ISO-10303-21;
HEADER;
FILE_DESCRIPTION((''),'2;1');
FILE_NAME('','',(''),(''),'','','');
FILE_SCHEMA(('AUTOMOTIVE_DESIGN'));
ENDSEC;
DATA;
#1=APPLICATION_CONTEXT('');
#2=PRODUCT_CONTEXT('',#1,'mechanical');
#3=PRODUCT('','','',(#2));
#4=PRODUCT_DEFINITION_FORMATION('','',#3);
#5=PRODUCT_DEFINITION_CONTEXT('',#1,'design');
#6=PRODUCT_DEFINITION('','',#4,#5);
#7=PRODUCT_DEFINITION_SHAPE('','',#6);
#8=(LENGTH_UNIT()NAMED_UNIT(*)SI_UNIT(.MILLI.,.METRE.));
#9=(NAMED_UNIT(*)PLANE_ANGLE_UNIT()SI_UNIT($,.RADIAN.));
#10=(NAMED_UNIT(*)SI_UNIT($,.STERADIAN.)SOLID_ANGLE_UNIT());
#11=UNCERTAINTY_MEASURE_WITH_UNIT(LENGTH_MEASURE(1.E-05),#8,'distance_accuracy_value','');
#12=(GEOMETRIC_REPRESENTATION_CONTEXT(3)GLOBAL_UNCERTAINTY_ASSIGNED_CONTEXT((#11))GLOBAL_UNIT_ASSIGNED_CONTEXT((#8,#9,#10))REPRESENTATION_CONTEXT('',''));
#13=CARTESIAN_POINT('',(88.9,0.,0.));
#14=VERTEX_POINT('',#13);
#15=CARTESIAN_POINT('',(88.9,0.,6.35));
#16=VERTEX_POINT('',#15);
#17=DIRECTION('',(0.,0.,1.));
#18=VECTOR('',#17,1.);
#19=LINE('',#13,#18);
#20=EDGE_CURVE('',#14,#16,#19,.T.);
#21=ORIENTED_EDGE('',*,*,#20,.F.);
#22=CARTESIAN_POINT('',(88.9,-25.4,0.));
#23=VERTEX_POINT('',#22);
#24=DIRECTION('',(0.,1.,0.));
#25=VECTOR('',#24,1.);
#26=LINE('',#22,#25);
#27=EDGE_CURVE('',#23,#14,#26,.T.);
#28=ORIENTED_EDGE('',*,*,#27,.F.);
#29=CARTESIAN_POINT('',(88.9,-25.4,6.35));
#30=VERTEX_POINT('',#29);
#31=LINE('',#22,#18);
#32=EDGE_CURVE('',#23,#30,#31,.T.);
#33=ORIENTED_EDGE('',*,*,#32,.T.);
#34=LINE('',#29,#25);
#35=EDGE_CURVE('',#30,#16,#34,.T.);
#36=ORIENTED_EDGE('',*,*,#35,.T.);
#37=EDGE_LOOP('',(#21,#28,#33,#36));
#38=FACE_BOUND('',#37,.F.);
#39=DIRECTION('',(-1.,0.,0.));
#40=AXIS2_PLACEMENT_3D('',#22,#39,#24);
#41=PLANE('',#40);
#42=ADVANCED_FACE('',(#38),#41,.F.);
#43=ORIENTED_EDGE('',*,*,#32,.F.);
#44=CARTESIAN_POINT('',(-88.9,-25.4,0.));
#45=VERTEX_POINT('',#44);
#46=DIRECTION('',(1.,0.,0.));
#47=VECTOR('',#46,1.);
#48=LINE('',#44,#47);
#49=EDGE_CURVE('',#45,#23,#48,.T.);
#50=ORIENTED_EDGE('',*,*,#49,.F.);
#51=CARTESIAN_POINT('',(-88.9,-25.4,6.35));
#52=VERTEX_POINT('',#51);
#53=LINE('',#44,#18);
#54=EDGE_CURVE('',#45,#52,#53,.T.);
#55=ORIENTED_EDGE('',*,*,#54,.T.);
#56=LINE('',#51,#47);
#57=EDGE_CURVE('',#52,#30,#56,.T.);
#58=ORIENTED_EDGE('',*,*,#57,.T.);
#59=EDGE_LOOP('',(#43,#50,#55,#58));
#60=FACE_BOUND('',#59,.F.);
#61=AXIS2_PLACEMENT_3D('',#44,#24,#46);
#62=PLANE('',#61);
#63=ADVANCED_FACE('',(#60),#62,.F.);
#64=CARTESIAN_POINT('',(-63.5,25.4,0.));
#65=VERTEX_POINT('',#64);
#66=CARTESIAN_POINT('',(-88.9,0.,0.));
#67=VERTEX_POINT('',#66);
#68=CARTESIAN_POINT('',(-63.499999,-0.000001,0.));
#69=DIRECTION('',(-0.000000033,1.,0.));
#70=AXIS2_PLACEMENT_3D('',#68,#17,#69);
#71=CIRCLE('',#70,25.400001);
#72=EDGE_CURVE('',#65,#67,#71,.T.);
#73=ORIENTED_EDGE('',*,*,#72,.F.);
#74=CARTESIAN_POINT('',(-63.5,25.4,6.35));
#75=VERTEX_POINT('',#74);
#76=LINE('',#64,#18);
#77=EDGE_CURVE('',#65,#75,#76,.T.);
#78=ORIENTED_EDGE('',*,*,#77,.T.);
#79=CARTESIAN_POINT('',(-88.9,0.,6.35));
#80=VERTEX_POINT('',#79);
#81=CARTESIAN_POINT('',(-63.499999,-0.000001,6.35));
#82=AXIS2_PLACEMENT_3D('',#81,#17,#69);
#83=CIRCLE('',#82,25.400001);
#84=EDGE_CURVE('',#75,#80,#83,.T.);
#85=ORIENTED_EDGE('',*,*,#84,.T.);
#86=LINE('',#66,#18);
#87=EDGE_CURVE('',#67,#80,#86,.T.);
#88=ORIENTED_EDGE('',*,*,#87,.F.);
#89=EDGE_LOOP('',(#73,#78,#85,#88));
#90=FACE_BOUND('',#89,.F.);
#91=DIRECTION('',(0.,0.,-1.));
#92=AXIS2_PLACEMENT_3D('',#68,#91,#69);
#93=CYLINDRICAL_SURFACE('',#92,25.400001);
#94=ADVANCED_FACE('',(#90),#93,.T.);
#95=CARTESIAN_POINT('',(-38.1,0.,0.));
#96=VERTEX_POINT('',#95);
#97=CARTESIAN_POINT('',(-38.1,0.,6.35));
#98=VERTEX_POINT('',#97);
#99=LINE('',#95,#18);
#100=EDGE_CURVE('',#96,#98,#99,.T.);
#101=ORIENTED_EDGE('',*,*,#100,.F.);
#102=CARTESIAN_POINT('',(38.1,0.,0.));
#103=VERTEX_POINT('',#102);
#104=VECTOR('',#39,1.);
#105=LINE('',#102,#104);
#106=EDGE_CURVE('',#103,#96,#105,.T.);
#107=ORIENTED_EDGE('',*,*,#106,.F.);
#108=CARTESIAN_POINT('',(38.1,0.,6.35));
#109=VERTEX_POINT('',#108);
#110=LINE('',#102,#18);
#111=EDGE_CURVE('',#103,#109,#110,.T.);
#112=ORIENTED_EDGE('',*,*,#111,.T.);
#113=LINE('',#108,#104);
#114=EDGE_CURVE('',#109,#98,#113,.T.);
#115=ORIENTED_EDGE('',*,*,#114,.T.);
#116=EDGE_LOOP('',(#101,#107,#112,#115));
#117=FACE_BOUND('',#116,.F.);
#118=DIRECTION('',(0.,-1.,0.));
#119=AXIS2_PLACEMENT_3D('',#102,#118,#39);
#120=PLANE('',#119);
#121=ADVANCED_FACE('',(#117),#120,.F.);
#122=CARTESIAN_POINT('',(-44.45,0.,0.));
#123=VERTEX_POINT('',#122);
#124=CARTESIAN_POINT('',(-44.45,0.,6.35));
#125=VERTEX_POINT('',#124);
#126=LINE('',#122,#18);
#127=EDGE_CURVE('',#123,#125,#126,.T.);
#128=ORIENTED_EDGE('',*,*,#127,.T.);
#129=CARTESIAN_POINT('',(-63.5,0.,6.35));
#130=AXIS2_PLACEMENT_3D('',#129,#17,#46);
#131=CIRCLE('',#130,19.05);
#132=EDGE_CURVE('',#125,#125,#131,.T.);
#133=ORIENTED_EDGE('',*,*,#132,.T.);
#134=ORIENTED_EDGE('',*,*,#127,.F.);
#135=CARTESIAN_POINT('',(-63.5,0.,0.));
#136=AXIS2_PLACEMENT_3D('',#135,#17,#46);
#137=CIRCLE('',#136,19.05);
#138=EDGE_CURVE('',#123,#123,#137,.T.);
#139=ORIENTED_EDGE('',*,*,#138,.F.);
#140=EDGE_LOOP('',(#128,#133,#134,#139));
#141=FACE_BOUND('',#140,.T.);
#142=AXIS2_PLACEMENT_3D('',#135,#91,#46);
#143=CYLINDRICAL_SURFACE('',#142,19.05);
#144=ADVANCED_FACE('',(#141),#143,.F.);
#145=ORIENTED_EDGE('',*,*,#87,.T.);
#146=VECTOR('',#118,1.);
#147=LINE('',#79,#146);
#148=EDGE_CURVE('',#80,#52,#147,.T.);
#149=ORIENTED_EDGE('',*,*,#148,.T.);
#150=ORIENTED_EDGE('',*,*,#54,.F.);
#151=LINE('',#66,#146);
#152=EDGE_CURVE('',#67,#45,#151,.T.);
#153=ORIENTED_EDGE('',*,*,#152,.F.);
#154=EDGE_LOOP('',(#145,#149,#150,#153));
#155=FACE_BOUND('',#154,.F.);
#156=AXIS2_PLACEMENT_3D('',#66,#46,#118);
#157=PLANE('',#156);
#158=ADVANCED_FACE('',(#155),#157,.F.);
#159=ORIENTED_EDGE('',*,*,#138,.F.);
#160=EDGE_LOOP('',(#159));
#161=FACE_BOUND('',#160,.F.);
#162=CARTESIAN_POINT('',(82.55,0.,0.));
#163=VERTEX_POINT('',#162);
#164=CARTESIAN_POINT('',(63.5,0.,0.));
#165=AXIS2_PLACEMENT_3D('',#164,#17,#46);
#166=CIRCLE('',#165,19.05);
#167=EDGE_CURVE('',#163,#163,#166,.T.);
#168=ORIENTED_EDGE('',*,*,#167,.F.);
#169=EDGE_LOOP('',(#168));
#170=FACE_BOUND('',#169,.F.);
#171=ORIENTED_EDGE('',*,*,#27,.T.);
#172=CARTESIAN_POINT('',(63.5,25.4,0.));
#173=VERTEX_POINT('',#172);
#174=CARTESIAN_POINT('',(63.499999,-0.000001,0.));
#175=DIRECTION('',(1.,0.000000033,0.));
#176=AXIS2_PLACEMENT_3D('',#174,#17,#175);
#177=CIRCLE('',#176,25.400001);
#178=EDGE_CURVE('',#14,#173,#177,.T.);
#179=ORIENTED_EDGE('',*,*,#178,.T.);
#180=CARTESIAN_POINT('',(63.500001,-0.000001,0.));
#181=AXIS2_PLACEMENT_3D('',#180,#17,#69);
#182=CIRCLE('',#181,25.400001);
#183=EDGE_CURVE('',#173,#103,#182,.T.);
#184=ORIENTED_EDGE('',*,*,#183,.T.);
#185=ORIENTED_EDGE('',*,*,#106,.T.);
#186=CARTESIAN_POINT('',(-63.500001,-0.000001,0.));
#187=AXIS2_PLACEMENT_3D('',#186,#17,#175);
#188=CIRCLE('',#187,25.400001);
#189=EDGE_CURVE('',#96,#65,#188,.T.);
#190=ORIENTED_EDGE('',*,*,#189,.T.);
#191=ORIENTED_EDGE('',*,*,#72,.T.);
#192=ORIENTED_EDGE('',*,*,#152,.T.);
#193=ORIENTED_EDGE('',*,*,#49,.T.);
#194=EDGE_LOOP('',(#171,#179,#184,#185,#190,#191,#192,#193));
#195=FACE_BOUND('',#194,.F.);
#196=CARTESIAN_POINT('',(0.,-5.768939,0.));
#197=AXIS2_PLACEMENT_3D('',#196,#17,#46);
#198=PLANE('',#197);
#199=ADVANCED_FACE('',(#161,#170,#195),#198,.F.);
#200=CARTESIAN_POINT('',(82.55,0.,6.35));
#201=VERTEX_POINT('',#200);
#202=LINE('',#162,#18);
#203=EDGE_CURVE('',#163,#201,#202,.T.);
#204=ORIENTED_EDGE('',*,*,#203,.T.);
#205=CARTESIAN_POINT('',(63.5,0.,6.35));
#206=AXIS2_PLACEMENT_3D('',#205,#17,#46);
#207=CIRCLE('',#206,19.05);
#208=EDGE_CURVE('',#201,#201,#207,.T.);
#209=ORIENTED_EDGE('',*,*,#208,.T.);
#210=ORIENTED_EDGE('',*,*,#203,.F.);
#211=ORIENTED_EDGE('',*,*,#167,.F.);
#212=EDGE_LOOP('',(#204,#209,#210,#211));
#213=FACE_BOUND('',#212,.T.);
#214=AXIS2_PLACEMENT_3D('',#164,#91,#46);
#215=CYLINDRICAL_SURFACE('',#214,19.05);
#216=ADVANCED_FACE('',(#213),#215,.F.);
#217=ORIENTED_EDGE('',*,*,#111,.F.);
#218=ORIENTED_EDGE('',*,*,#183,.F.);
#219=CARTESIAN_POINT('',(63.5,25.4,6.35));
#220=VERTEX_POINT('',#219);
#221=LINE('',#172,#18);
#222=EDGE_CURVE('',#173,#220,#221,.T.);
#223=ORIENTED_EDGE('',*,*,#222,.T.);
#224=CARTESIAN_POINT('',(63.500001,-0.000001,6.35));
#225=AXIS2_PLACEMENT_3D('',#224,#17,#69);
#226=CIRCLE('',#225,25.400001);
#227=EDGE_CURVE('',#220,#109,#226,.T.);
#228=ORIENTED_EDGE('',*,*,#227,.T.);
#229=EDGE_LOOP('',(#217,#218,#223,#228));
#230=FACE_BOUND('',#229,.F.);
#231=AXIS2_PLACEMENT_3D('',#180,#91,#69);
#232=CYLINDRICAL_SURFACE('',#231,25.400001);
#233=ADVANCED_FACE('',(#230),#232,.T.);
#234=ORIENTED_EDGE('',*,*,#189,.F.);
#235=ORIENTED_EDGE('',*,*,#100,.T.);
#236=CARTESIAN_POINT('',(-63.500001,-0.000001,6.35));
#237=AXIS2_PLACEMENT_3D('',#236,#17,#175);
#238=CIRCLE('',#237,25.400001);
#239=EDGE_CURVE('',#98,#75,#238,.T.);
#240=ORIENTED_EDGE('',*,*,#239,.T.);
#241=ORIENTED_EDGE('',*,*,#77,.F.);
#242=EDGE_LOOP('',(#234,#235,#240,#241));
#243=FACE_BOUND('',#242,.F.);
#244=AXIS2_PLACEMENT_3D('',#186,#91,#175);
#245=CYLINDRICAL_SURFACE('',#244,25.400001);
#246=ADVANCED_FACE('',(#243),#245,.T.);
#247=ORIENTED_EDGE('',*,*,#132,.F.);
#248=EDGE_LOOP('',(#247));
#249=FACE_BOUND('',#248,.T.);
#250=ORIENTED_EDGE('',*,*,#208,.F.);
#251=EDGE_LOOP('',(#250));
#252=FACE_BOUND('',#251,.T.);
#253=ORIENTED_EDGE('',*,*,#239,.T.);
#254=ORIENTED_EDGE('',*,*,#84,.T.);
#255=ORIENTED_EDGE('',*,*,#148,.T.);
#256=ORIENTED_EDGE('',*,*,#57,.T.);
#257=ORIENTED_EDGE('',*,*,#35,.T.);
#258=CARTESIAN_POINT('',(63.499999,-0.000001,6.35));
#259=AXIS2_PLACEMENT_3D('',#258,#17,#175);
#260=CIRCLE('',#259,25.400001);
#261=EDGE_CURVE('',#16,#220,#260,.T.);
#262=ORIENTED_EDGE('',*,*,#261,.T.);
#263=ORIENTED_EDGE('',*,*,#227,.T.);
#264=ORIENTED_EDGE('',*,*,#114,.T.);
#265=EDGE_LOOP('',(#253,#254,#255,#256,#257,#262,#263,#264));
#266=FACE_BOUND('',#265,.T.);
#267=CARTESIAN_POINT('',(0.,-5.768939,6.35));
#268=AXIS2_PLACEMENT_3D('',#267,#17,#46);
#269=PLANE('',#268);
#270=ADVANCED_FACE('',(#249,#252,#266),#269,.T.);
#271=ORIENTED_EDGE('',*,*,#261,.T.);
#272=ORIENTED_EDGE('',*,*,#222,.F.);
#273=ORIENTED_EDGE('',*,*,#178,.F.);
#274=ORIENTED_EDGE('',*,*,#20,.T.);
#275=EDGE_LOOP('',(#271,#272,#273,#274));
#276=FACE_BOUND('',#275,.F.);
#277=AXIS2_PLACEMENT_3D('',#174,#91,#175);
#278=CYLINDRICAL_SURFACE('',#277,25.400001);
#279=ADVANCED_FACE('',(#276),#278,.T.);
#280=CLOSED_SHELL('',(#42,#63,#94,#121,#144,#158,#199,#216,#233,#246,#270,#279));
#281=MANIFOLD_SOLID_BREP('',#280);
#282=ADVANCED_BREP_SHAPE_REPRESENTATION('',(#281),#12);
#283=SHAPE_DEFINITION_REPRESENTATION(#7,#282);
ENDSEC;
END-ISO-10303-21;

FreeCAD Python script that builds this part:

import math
import FreeCAD as App
import Part
import Sketcher
Q = App.Units.Quantity

doc = App.newDocument("Part")
body = doc.addObject("PartDesign::Body", "Body")

# Sketch on XY plane
sketch1 = doc.addObject("Sketcher::SketchObject", "Sketch")
body.addObject(sketch1)
sketch1.AttachmentSupport = (doc.XY_Plane, [""])
sketch1.MapMode = "FlatFace"
sketch1.addGeometry([
    Part.LineSegment(App.Vector(-88.9, 0, 0), App.Vector(-88.9, -25.4, 0)),  # 0
    Part.LineSegment(App.Vector(-88.9, -25.4, 0), App.Vector(88.9, -25.4, 0)),  # 1
    Part.LineSegment(App.Vector(88.9, -25.4, 0), App.Vector(88.9, 0, 0)),  # 2
    Part.ArcOfCircle(Part.Circle(App.Vector(63.499999, -0.000001, 0), App.Vector(0, 0, 1), 25.400001), math.radians(0.000002), math.radians(89.999998)),  # 3
    Part.ArcOfCircle(Part.Circle(App.Vector(63.500001, -0.000001, 0), App.Vector(0, 0, 1), 25.400001), math.radians(90.000002), math.radians(179.999998)),  # 4
    Part.LineSegment(App.Vector(38.1, 0, 0), App.Vector(-38.1, 0, 0)),  # 5
    Part.ArcOfCircle(Part.Circle(App.Vector(-63.500001, -0.000001, 0), App.Vector(0, 0, 1), 25.400001), math.radians(0.000002), math.radians(89.999998)),  # 6
    Part.ArcOfCircle(Part.Circle(App.Vector(-63.499999, -0.000001, 0), App.Vector(0, 0, 1), 25.400001), math.radians(90.000002), math.radians(179.999998)),  # 7
    Part.Circle(App.Vector(-63.5, 0, 0), App.Vector(0, 0, 1), 19.05),  # 8
    Part.Circle(App.Vector(63.5, 0, 0), App.Vector(0, 0, 1), 19.05),  # 9
], False)
sketch1.addConstraint([
    Sketcher.Constraint("Coincident", 0, 2, 1, 1),
    Sketcher.Constraint("Coincident", 1, 2, 2, 1),
    Sketcher.Constraint("Tangent", 2, 2, 3, 1),
    Sketcher.Constraint("Tangent", 3, 2, 4, 1),
    Sketcher.Constraint("Coincident", 4, 2, 5, 1),
    Sketcher.Constraint("Coincident", 5, 2, 6, 1),
    Sketcher.Constraint("Tangent", 6, 2, 7, 1),
    Sketcher.Constraint("Tangent", 7, 2, 0, 1),
    Sketcher.Constraint("Vertical", 0),
    Sketcher.Constraint("Horizontal", 1),
    Sketcher.Constraint("Vertical", 2),
    Sketcher.Constraint("Horizontal", 5),
    Sketcher.Constraint("Coincident", 8, 3, 6, 3),
    Sketcher.Constraint("Coincident", 9, 3, 3, 3),
    Sketcher.Constraint("Equal", 3, 4),
    Sketcher.Constraint("Equal", 4, 6),
    Sketcher.Constraint("Equal", 6, 7),
    Sketcher.Constraint("Equal", 8, 9),
    Sketcher.Constraint("Symmetric", 3, 3, 6, 3, -1, 1),
    Sketcher.Constraint("Symmetric", 3, 2, 6, 2, -2),
    Sketcher.Constraint("PointOnObject", 4, 2, -1),
    Sketcher.Constraint("Vertical", 9, 3, 3, 2),
    Sketcher.Constraint("Radius", 3, Q("1 in")),
    Sketcher.Constraint("Diameter", 8, Q("1.5 in")),
    Sketcher.Constraint("DistanceX", 1, 1, 1, 2, Q("7 in")),
    Sketcher.Constraint("DistanceY", 0, 2, 0, 1, Q("1 in")),
])
pad1 = doc.addObject("PartDesign::Pad", "Pad")
body.addObject(pad1)
pad1.Profile = sketch1
pad1.Length = Q("0.25 in")

doc.recompute()
